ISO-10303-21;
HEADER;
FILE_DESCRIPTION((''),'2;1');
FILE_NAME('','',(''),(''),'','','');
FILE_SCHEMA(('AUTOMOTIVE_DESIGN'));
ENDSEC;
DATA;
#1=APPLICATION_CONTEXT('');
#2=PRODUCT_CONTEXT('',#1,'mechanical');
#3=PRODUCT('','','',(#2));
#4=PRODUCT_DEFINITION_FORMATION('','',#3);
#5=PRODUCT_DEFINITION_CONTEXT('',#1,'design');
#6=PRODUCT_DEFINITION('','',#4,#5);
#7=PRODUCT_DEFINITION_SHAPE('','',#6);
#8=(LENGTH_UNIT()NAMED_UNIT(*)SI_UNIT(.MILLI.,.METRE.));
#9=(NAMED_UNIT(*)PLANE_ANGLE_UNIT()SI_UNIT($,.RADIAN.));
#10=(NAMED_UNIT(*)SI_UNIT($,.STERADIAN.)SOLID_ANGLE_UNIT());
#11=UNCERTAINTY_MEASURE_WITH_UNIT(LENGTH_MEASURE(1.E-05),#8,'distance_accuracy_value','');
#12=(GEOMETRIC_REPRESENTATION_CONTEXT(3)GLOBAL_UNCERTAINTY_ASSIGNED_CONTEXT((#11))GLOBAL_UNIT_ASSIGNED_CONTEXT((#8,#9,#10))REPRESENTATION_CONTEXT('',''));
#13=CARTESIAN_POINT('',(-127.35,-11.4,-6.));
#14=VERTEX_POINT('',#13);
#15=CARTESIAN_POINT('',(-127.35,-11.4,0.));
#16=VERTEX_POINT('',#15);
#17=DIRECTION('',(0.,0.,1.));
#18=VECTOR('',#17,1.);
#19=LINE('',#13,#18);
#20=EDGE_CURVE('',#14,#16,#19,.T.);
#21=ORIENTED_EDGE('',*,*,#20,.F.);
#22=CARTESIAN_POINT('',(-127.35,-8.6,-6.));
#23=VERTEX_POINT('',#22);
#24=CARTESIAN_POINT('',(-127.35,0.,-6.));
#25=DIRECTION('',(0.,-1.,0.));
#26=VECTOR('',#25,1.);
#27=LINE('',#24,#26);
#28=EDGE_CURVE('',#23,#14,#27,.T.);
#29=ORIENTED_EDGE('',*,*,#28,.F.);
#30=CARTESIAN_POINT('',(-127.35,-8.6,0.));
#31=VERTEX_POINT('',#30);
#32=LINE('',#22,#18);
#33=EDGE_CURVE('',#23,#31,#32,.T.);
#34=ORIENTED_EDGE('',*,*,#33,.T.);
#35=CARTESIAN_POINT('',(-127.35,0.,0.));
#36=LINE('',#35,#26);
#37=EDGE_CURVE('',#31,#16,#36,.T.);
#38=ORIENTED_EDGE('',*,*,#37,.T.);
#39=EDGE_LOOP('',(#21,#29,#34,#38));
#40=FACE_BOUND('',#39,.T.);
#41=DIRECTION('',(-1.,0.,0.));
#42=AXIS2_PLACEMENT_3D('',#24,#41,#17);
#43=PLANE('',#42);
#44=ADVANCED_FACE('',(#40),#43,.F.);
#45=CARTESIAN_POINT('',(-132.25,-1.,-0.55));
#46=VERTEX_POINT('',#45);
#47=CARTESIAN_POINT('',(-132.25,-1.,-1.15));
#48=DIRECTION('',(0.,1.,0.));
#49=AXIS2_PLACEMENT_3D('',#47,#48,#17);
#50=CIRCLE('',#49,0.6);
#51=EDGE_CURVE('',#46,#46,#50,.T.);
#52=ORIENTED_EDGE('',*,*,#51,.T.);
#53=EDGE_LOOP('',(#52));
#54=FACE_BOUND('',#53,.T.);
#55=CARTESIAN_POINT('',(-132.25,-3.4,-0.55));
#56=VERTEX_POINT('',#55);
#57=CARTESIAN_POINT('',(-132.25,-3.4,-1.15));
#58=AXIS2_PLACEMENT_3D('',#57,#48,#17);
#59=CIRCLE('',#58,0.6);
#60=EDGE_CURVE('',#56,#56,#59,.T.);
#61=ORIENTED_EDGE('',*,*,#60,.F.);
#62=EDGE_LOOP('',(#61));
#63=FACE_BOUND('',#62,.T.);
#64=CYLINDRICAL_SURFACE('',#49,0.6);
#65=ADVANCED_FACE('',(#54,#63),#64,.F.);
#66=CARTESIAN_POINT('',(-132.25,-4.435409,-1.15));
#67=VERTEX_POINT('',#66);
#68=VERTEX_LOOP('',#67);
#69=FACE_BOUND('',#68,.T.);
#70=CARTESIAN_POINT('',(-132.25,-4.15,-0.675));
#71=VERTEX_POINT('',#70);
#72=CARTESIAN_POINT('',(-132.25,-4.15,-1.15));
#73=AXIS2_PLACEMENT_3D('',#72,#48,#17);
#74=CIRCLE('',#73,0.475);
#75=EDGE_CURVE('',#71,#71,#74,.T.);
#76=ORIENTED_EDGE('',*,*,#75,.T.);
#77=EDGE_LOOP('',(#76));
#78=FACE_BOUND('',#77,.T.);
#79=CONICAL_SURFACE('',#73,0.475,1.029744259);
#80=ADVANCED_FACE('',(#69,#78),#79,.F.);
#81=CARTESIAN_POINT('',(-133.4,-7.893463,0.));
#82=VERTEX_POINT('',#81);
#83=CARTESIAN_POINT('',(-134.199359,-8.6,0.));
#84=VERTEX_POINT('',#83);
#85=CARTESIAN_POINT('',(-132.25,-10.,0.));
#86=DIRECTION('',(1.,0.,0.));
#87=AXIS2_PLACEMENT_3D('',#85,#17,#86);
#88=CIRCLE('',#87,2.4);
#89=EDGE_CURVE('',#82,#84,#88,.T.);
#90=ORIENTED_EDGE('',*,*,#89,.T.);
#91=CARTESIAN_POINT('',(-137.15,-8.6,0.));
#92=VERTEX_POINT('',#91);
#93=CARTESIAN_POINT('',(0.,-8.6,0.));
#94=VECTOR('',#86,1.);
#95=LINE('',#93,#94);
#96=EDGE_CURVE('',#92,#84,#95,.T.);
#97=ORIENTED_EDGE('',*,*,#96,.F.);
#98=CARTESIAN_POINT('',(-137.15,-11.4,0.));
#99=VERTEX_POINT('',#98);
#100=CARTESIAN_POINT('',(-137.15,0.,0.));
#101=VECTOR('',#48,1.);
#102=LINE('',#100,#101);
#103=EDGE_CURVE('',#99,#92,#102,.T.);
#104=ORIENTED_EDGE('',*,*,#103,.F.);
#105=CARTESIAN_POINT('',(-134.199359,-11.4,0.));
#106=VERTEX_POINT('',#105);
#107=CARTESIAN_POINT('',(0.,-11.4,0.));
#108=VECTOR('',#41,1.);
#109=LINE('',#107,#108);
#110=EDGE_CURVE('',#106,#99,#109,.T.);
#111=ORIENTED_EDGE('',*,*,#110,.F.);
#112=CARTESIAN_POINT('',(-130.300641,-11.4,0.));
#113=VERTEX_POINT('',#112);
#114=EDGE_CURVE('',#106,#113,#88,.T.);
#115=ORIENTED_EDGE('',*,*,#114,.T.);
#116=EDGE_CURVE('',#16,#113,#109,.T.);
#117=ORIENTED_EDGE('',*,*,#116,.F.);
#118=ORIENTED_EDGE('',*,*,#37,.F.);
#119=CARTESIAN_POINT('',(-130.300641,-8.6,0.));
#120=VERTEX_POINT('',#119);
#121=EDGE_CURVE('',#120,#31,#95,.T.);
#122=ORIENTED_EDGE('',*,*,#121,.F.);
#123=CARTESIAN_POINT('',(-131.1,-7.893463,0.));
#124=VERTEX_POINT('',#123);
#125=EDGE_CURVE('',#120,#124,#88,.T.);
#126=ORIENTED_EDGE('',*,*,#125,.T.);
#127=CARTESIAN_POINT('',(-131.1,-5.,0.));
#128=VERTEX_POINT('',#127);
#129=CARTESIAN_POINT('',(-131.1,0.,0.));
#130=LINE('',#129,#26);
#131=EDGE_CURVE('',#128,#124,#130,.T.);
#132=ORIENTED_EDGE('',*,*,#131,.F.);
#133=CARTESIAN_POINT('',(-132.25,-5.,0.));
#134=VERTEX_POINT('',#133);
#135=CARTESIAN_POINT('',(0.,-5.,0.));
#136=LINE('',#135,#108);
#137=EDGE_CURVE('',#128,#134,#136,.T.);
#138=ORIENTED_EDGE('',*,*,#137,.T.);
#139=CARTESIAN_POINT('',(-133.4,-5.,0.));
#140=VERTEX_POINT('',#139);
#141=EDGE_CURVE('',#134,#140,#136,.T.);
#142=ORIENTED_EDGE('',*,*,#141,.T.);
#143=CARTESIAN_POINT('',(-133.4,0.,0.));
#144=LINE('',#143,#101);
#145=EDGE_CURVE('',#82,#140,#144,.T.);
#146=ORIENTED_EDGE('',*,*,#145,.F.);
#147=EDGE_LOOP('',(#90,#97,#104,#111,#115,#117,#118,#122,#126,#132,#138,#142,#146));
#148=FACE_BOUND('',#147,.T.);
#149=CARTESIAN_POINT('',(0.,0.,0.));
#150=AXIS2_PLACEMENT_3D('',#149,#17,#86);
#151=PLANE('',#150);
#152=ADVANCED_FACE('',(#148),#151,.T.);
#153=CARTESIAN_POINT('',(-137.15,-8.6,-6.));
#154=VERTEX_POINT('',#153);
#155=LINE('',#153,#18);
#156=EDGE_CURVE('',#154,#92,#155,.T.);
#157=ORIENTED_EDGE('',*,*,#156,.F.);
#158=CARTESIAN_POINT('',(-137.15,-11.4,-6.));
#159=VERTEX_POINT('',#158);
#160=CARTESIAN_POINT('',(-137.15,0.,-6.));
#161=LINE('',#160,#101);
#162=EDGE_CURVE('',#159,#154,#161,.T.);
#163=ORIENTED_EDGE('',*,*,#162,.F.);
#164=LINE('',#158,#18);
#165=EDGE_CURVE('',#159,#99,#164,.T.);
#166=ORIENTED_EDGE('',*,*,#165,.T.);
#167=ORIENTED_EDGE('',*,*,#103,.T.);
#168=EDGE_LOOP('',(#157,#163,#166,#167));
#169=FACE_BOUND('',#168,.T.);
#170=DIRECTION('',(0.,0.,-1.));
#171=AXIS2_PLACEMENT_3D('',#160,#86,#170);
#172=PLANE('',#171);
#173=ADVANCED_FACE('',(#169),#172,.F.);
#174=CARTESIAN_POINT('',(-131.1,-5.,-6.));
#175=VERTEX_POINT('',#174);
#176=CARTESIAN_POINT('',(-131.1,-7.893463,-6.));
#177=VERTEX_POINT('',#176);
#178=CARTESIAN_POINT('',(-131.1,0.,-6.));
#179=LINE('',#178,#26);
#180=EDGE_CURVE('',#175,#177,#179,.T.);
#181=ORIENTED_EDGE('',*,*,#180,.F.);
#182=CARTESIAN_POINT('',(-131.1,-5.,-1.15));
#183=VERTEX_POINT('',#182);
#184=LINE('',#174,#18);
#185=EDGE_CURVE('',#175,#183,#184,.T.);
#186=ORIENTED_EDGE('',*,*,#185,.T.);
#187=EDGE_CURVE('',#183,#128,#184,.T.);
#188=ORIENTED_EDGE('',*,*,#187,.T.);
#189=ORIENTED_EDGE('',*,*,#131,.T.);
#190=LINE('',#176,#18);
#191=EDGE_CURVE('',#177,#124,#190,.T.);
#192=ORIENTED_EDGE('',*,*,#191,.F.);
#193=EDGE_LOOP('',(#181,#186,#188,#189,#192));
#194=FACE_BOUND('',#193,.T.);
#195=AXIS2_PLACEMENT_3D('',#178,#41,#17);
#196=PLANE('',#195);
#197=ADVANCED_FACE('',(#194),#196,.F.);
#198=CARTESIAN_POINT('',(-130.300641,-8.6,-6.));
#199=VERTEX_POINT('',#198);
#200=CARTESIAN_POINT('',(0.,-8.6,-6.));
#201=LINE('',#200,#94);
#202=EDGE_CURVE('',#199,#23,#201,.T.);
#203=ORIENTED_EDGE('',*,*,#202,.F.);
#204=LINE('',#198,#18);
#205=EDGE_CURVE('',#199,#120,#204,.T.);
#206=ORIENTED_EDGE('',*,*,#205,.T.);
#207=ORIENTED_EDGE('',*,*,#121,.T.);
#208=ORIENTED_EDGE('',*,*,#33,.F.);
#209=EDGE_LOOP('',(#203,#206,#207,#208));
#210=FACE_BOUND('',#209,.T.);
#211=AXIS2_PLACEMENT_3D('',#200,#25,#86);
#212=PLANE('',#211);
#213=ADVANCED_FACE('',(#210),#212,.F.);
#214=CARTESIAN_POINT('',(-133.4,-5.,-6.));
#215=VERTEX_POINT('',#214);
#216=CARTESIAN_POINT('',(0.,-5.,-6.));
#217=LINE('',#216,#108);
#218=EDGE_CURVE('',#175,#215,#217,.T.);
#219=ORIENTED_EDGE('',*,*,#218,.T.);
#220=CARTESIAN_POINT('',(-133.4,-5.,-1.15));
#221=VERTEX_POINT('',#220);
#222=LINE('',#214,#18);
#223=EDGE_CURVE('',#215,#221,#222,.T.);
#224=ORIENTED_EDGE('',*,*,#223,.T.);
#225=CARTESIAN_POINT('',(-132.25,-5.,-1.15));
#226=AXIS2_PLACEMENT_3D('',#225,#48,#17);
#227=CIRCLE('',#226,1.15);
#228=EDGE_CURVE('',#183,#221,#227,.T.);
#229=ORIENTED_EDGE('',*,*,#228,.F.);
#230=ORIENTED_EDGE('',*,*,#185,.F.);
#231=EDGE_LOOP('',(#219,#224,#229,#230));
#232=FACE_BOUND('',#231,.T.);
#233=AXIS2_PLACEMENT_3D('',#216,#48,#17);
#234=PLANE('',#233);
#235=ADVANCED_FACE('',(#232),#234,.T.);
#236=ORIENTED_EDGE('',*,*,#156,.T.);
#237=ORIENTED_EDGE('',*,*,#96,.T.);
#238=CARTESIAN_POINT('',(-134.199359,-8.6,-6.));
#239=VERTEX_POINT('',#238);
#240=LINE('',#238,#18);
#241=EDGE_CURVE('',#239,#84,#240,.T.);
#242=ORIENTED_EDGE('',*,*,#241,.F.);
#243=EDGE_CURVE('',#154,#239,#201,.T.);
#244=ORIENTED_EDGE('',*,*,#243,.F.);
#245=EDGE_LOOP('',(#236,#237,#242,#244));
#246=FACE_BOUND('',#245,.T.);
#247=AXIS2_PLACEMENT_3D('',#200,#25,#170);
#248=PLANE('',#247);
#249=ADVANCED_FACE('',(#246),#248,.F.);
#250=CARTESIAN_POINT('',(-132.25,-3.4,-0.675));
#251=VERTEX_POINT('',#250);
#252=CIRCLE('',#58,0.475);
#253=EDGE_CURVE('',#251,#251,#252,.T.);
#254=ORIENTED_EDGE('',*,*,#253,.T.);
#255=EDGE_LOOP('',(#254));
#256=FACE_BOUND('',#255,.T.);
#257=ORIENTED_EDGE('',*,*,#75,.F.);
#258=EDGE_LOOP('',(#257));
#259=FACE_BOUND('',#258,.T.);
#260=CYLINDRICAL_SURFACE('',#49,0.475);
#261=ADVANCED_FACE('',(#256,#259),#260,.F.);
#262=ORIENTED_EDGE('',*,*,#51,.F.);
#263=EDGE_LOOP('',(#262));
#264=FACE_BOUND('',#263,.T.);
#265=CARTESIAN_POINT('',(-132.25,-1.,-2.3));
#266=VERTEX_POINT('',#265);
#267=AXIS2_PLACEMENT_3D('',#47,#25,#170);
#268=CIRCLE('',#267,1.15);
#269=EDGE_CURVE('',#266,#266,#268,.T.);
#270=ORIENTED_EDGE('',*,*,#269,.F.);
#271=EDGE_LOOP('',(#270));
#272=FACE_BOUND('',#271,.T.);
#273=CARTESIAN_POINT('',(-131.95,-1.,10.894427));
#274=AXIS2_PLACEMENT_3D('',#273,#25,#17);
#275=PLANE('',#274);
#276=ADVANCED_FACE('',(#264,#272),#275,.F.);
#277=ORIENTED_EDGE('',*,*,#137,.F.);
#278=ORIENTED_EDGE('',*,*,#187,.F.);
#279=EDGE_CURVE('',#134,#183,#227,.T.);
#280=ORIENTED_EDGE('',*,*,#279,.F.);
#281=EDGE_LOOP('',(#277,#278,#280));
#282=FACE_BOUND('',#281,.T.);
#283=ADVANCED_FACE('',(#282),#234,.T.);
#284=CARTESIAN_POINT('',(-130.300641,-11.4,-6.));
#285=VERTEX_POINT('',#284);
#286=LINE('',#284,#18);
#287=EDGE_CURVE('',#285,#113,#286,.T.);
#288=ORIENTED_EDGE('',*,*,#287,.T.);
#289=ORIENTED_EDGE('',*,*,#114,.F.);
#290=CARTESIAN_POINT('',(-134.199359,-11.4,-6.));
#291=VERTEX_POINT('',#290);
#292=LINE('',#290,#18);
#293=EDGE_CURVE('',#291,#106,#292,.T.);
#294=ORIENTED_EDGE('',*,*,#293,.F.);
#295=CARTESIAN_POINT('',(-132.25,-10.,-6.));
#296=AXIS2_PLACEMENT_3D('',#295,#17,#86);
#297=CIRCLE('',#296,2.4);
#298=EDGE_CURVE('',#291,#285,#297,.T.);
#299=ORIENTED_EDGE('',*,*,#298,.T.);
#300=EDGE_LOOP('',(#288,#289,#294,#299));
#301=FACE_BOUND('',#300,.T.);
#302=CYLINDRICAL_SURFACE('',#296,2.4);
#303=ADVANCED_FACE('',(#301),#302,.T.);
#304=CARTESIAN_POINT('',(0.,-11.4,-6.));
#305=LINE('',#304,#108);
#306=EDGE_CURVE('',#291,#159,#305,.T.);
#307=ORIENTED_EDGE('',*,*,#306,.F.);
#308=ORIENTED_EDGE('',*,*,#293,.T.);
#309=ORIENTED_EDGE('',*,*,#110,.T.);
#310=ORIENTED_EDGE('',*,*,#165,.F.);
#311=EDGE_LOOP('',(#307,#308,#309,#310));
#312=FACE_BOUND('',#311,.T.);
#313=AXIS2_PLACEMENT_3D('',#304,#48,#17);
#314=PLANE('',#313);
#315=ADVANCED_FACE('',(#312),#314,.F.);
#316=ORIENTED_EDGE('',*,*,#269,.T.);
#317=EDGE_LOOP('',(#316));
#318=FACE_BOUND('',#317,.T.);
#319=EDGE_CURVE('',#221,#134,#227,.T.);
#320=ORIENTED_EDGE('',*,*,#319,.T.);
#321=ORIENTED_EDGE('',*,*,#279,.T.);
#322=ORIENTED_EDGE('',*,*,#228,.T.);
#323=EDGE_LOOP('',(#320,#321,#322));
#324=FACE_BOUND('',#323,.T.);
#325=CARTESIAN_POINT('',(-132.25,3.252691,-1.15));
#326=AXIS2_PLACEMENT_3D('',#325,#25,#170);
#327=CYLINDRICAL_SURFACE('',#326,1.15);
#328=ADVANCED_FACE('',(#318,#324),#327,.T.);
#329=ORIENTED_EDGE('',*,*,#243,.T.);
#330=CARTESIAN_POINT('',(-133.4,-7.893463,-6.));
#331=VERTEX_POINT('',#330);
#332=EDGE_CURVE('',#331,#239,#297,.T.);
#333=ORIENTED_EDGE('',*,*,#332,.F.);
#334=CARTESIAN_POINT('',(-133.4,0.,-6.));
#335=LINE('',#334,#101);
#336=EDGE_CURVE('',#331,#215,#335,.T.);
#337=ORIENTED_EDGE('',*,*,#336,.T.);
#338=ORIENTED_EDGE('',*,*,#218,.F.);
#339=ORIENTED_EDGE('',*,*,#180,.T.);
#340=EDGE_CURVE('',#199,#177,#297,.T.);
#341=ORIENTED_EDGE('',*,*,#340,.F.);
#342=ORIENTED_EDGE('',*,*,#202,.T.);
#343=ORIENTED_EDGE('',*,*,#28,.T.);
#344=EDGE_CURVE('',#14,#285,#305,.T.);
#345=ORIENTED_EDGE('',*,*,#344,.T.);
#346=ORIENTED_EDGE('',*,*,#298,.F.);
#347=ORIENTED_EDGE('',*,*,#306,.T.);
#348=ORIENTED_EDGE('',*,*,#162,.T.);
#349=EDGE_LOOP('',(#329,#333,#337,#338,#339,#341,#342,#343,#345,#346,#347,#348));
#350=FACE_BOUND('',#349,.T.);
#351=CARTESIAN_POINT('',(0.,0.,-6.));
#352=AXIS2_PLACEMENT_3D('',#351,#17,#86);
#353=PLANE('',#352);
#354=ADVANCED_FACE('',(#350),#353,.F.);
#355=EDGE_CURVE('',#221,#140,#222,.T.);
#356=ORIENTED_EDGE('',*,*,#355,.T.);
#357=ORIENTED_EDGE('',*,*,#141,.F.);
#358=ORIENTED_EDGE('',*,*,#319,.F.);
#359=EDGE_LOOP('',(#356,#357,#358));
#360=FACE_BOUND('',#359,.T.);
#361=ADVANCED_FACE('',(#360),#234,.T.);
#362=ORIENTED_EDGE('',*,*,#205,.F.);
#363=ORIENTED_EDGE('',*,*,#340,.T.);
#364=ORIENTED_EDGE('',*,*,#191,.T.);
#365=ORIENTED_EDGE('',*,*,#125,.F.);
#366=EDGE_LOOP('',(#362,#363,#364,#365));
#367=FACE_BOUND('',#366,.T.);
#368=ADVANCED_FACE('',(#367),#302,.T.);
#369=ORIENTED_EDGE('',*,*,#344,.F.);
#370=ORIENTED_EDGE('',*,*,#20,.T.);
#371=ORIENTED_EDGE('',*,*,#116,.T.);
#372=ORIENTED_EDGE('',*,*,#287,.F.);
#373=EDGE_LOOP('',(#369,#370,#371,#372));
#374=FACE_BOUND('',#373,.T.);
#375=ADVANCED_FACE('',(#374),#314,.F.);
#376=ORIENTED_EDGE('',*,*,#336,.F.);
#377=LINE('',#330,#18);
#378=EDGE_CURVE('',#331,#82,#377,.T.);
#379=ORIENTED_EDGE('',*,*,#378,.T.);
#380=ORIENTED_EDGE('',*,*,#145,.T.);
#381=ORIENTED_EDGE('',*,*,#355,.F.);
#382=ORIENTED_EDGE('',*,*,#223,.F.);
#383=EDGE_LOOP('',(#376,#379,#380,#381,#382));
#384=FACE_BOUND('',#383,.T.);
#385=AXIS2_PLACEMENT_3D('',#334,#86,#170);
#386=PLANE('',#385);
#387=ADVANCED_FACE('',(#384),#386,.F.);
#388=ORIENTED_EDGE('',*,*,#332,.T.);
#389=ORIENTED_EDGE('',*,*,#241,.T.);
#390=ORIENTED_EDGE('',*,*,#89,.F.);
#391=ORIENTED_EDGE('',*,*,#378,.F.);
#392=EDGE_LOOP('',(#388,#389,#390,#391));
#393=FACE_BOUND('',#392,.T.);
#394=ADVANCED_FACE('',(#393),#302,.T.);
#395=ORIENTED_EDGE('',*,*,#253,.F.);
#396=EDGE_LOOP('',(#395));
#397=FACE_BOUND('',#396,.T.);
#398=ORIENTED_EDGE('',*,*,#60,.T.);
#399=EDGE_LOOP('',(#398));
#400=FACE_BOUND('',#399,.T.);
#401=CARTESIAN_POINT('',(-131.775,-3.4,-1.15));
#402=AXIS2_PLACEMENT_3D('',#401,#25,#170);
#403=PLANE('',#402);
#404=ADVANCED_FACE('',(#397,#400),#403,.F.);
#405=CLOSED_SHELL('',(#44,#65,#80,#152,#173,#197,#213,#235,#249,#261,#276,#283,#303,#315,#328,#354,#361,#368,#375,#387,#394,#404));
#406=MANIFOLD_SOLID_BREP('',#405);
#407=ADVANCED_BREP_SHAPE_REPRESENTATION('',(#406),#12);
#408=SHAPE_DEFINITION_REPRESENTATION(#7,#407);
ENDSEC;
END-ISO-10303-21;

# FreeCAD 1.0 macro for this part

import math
import FreeCAD as App
import Part
import Sketcher
Q = App.Units.Quantity

doc = App.newDocument("Part")
body = doc.addObject("PartDesign::Body", "Body")

# Sketch on XY plane
sketch1 = body.newObject("Sketcher::SketchObject", "Sketch")
sketch1.AttachmentSupport = (doc.getObject("XY_Plane"), [""])
sketch1.MapMode = "FlatFace"
sketch1.addGeometry(Part.LineSegment(App.Vector(-131.1, -7.9, 0), App.Vector(-131.1, -5, 0)), False)
sketch1.addGeometry(Part.LineSegment(App.Vector(-131.1, -5, 0), App.Vector(-133.4, -5, 0)), False)
sketch1.addGeometry(Part.LineSegment(App.Vector(-133.4, -5, 0), App.Vector(-133.4, -7.9, 0)), False)
sketch1.addGeometry(Part.ArcOfCircle(Part.Circle(App.Vector(-132.2, -10, 0), App.Vector(0, 0, 1), 2.4), math.radians(119), math.radians(144)), False)
sketch1.addGeometry(Part.LineSegment(App.Vector(-134.2, -8.6, 0), App.Vector(-137.2, -8.6, 0)), False)
sketch1.addGeometry(Part.LineSegment(App.Vector(-137.2, -8.6, 0), App.Vector(-137.2, -11.4, 0)), False)
sketch1.addGeometry(Part.LineSegment(App.Vector(-137.2, -11.4, 0), App.Vector(-134.2, -11.4, 0)), False)
sketch1.addGeometry(Part.ArcOfCircle(Part.Circle(App.Vector(-132.2, -10, 0), App.Vector(0, 0, 1), 2.4), math.radians(-144), math.radians(-36)), False)
sketch1.addGeometry(Part.LineSegment(App.Vector(-130.3, -11.4, 0), App.Vector(-127.3, -11.4, 0)), False)
sketch1.addGeometry(Part.LineSegment(App.Vector(-127.3, -11.4, 0), App.Vector(-127.3, -8.6, 0)), False)
sketch1.addGeometry(Part.LineSegment(App.Vector(-127.3, -8.6, 0), App.Vector(-130.3, -8.6, 0)), False)
sketch1.addGeometry(Part.ArcOfCircle(Part.Circle(App.Vector(-132.3, -10, 0), App.Vector(0, 0, 1), 2.4), math.radians(36), math.radians(61)), False)
sketch1.addConstraint(Sketcher.Constraint("Coincident", 0, 2, 1, 1))
sketch1.addConstraint(Sketcher.Constraint("Coincident", 1, 2, 2, 1))
sketch1.addConstraint(Sketcher.Constraint("Coincident", 2, 2, 3, 1))
sketch1.addConstraint(Sketcher.Constraint("Coincident", 3, 2, 4, 1))
sketch1.addConstraint(Sketcher.Constraint("Coincident", 4, 2, 5, 1))
sketch1.addConstraint(Sketcher.Constraint("Coincident", 5, 2, 6, 1))
sketch1.addConstraint(Sketcher.Constraint("Coincident", 6, 2, 7, 1))
sketch1.addConstraint(Sketcher.Constraint("Coincident", 7, 2, 8, 1))
sketch1.addConstraint(Sketcher.Constraint("Coincident", 8, 2, 9, 1))
sketch1.addConstraint(Sketcher.Constraint("Coincident", 9, 2, 10, 1))
sketch1.addConstraint(Sketcher.Constraint("Coincident", 10, 2, 11, 1))
sketch1.addConstraint(Sketcher.Constraint("Coincident", 11, 2, 0, 1))
sketch1.addConstraint(Sketcher.Constraint("Vertical", 0))
sketch1.addConstraint(Sketcher.Constraint("Horizontal", 1))
sketch1.addConstraint(Sketcher.Constraint("Vertical", 2))
sketch1.addConstraint(Sketcher.Constraint("Horizontal", 4))
sketch1.addConstraint(Sketcher.Constraint("Vertical", 5))
sketch1.addConstraint(Sketcher.Constraint("Horizontal", 6))
sketch1.addConstraint(Sketcher.Constraint("Horizontal", 8))
sketch1.addConstraint(Sketcher.Constraint("Vertical", 9))
sketch1.addConstraint(Sketcher.Constraint("Horizontal", 10))
sketch1.addConstraint(Sketcher.Constraint("Coincident", 7, 3, 3, 3))
sketch1.addConstraint(Sketcher.Constraint("Coincident", 11, 3, 3, 3))
sketch1.addConstraint(Sketcher.Constraint("Equal", 3, 7))
sketch1.addConstraint(Sketcher.Constraint("Equal", 7, 11))
sketch1.addConstraint(Sketcher.Constraint("Horizontal", 6, 2, 7, 2))
sketch1.addConstraint(Sketcher.Constraint("Horizontal", 4, 2, 9, 2))
sketch1.addConstraint(Sketcher.Constraint("Horizontal", 2, 2, 11, 2))
sketch1.addConstraint(Sketcher.Constraint("Vertical", 3, 2, 6, 2))
sketch1.addConstraint(Sketcher.Constraint("Equal", 6, 8))
sketch1.addConstraint(Sketcher.Constraint("Radius", 3, Q("2.4 mm")))
sketch1.addConstraint(Sketcher.Constraint("DistanceX", 1, 2, 1, 1, Q("2.3 mm")))
sketch1.addConstraint(Sketcher.Constraint("DistanceY", 5, 2, 5, 1, Q("2.8 mm")))
sketch1.addConstraint(Sketcher.Constraint("DistanceY", 3, 3, -1, 1, Q("10 mm")))
sketch1.addConstraint(Sketcher.Constraint("DistanceY", 0, 2, -1, 1, Q("5 mm")))
sketch1.addConstraint(Sketcher.Constraint("DistanceX", 0, 2, -1, 1, Q("131.1 mm")))
sketch1.addConstraint(Sketcher.Constraint("DistanceX", 4, 2, 11, 3, Q("4.9 mm")))
pad1 = body.newObject("PartDesign::Pad", "Pad")
pad1.Profile = sketch1
pad1.Length = 6
pad1.Reversed = True

# Sketch on XZ plane
sketch2 = body.newObject("Sketcher::SketchObject", "Sketch001")
sketch2.AttachmentSupport = (doc.getObject("XZ_Plane"), [""])
sketch2.MapMode = "FlatFace"
sketch2.AttachmentOffset = App.Placement(App.Vector(0, 0, 5), App.Rotation())
sketch2.addGeometry(Part.Circle(App.Vector(-132.2, -1.1, 0), App.Vector(0, 0, 1), 1.1), False)
sketch2.addConstraint(Sketcher.Constraint("Diameter", 0, Q("2.3 mm")))
sketch2.addConstraint(Sketcher.Constraint("DistanceX", 0, 3, -1, 1, Q("132.25 mm")))
sketch2.addConstraint(Sketcher.Constraint("DistanceY", 0, 3, -1, 1, Q("1.15 mm")))
pad2 = body.newObject("PartDesign::Pad", "Pad001")
pad2.Profile = sketch2
pad2.Length = 4
pad2.Reversed = True

# Sketch on XZ plane
sketch3 = body.newObject("Sketcher::SketchObject", "Sketch002")
sketch3.AttachmentSupport = (doc.getObject("XZ_Plane"), [""])
sketch3.MapMode = "FlatFace"
sketch3.AttachmentOffset = App.Placement(App.Vector(0, 0, 1), App.Rotation())
sketch3.addGeometry(Part.Circle(App.Vector(-132.25, -1.15, 0), App.Vector(0, 0, 1), 0.47), False)
sketch3.addConstraint(Sketcher.Constraint("Diameter", 0, Q("0.95 mm")))
sketch3.addConstraint(Sketcher.Constraint("DistanceX", 0, 3, -1, 1, Q("132.25 mm")))
sketch3.addConstraint(Sketcher.Constraint("DistanceY", 0, 3, -1, 1, Q("1.15 mm")))
doc.recompute()
hole = body.newObject("PartDesign::Hole", "Hole")
hole.Profile = sketch3
hole.ThreadType = "None"
hole.Diameter = 0.95
hole.DepthType = "Dimension"
hole.Depth = 3.15
hole.DrillPoint = "Angled"
hole.DrillPointAngle = 118
hole.HoleCutType = "Counterbore"
hole.HoleCutDiameter = 1.2
hole.HoleCutDepth = 2.4
hole.Reversed = True

doc.recompute()
